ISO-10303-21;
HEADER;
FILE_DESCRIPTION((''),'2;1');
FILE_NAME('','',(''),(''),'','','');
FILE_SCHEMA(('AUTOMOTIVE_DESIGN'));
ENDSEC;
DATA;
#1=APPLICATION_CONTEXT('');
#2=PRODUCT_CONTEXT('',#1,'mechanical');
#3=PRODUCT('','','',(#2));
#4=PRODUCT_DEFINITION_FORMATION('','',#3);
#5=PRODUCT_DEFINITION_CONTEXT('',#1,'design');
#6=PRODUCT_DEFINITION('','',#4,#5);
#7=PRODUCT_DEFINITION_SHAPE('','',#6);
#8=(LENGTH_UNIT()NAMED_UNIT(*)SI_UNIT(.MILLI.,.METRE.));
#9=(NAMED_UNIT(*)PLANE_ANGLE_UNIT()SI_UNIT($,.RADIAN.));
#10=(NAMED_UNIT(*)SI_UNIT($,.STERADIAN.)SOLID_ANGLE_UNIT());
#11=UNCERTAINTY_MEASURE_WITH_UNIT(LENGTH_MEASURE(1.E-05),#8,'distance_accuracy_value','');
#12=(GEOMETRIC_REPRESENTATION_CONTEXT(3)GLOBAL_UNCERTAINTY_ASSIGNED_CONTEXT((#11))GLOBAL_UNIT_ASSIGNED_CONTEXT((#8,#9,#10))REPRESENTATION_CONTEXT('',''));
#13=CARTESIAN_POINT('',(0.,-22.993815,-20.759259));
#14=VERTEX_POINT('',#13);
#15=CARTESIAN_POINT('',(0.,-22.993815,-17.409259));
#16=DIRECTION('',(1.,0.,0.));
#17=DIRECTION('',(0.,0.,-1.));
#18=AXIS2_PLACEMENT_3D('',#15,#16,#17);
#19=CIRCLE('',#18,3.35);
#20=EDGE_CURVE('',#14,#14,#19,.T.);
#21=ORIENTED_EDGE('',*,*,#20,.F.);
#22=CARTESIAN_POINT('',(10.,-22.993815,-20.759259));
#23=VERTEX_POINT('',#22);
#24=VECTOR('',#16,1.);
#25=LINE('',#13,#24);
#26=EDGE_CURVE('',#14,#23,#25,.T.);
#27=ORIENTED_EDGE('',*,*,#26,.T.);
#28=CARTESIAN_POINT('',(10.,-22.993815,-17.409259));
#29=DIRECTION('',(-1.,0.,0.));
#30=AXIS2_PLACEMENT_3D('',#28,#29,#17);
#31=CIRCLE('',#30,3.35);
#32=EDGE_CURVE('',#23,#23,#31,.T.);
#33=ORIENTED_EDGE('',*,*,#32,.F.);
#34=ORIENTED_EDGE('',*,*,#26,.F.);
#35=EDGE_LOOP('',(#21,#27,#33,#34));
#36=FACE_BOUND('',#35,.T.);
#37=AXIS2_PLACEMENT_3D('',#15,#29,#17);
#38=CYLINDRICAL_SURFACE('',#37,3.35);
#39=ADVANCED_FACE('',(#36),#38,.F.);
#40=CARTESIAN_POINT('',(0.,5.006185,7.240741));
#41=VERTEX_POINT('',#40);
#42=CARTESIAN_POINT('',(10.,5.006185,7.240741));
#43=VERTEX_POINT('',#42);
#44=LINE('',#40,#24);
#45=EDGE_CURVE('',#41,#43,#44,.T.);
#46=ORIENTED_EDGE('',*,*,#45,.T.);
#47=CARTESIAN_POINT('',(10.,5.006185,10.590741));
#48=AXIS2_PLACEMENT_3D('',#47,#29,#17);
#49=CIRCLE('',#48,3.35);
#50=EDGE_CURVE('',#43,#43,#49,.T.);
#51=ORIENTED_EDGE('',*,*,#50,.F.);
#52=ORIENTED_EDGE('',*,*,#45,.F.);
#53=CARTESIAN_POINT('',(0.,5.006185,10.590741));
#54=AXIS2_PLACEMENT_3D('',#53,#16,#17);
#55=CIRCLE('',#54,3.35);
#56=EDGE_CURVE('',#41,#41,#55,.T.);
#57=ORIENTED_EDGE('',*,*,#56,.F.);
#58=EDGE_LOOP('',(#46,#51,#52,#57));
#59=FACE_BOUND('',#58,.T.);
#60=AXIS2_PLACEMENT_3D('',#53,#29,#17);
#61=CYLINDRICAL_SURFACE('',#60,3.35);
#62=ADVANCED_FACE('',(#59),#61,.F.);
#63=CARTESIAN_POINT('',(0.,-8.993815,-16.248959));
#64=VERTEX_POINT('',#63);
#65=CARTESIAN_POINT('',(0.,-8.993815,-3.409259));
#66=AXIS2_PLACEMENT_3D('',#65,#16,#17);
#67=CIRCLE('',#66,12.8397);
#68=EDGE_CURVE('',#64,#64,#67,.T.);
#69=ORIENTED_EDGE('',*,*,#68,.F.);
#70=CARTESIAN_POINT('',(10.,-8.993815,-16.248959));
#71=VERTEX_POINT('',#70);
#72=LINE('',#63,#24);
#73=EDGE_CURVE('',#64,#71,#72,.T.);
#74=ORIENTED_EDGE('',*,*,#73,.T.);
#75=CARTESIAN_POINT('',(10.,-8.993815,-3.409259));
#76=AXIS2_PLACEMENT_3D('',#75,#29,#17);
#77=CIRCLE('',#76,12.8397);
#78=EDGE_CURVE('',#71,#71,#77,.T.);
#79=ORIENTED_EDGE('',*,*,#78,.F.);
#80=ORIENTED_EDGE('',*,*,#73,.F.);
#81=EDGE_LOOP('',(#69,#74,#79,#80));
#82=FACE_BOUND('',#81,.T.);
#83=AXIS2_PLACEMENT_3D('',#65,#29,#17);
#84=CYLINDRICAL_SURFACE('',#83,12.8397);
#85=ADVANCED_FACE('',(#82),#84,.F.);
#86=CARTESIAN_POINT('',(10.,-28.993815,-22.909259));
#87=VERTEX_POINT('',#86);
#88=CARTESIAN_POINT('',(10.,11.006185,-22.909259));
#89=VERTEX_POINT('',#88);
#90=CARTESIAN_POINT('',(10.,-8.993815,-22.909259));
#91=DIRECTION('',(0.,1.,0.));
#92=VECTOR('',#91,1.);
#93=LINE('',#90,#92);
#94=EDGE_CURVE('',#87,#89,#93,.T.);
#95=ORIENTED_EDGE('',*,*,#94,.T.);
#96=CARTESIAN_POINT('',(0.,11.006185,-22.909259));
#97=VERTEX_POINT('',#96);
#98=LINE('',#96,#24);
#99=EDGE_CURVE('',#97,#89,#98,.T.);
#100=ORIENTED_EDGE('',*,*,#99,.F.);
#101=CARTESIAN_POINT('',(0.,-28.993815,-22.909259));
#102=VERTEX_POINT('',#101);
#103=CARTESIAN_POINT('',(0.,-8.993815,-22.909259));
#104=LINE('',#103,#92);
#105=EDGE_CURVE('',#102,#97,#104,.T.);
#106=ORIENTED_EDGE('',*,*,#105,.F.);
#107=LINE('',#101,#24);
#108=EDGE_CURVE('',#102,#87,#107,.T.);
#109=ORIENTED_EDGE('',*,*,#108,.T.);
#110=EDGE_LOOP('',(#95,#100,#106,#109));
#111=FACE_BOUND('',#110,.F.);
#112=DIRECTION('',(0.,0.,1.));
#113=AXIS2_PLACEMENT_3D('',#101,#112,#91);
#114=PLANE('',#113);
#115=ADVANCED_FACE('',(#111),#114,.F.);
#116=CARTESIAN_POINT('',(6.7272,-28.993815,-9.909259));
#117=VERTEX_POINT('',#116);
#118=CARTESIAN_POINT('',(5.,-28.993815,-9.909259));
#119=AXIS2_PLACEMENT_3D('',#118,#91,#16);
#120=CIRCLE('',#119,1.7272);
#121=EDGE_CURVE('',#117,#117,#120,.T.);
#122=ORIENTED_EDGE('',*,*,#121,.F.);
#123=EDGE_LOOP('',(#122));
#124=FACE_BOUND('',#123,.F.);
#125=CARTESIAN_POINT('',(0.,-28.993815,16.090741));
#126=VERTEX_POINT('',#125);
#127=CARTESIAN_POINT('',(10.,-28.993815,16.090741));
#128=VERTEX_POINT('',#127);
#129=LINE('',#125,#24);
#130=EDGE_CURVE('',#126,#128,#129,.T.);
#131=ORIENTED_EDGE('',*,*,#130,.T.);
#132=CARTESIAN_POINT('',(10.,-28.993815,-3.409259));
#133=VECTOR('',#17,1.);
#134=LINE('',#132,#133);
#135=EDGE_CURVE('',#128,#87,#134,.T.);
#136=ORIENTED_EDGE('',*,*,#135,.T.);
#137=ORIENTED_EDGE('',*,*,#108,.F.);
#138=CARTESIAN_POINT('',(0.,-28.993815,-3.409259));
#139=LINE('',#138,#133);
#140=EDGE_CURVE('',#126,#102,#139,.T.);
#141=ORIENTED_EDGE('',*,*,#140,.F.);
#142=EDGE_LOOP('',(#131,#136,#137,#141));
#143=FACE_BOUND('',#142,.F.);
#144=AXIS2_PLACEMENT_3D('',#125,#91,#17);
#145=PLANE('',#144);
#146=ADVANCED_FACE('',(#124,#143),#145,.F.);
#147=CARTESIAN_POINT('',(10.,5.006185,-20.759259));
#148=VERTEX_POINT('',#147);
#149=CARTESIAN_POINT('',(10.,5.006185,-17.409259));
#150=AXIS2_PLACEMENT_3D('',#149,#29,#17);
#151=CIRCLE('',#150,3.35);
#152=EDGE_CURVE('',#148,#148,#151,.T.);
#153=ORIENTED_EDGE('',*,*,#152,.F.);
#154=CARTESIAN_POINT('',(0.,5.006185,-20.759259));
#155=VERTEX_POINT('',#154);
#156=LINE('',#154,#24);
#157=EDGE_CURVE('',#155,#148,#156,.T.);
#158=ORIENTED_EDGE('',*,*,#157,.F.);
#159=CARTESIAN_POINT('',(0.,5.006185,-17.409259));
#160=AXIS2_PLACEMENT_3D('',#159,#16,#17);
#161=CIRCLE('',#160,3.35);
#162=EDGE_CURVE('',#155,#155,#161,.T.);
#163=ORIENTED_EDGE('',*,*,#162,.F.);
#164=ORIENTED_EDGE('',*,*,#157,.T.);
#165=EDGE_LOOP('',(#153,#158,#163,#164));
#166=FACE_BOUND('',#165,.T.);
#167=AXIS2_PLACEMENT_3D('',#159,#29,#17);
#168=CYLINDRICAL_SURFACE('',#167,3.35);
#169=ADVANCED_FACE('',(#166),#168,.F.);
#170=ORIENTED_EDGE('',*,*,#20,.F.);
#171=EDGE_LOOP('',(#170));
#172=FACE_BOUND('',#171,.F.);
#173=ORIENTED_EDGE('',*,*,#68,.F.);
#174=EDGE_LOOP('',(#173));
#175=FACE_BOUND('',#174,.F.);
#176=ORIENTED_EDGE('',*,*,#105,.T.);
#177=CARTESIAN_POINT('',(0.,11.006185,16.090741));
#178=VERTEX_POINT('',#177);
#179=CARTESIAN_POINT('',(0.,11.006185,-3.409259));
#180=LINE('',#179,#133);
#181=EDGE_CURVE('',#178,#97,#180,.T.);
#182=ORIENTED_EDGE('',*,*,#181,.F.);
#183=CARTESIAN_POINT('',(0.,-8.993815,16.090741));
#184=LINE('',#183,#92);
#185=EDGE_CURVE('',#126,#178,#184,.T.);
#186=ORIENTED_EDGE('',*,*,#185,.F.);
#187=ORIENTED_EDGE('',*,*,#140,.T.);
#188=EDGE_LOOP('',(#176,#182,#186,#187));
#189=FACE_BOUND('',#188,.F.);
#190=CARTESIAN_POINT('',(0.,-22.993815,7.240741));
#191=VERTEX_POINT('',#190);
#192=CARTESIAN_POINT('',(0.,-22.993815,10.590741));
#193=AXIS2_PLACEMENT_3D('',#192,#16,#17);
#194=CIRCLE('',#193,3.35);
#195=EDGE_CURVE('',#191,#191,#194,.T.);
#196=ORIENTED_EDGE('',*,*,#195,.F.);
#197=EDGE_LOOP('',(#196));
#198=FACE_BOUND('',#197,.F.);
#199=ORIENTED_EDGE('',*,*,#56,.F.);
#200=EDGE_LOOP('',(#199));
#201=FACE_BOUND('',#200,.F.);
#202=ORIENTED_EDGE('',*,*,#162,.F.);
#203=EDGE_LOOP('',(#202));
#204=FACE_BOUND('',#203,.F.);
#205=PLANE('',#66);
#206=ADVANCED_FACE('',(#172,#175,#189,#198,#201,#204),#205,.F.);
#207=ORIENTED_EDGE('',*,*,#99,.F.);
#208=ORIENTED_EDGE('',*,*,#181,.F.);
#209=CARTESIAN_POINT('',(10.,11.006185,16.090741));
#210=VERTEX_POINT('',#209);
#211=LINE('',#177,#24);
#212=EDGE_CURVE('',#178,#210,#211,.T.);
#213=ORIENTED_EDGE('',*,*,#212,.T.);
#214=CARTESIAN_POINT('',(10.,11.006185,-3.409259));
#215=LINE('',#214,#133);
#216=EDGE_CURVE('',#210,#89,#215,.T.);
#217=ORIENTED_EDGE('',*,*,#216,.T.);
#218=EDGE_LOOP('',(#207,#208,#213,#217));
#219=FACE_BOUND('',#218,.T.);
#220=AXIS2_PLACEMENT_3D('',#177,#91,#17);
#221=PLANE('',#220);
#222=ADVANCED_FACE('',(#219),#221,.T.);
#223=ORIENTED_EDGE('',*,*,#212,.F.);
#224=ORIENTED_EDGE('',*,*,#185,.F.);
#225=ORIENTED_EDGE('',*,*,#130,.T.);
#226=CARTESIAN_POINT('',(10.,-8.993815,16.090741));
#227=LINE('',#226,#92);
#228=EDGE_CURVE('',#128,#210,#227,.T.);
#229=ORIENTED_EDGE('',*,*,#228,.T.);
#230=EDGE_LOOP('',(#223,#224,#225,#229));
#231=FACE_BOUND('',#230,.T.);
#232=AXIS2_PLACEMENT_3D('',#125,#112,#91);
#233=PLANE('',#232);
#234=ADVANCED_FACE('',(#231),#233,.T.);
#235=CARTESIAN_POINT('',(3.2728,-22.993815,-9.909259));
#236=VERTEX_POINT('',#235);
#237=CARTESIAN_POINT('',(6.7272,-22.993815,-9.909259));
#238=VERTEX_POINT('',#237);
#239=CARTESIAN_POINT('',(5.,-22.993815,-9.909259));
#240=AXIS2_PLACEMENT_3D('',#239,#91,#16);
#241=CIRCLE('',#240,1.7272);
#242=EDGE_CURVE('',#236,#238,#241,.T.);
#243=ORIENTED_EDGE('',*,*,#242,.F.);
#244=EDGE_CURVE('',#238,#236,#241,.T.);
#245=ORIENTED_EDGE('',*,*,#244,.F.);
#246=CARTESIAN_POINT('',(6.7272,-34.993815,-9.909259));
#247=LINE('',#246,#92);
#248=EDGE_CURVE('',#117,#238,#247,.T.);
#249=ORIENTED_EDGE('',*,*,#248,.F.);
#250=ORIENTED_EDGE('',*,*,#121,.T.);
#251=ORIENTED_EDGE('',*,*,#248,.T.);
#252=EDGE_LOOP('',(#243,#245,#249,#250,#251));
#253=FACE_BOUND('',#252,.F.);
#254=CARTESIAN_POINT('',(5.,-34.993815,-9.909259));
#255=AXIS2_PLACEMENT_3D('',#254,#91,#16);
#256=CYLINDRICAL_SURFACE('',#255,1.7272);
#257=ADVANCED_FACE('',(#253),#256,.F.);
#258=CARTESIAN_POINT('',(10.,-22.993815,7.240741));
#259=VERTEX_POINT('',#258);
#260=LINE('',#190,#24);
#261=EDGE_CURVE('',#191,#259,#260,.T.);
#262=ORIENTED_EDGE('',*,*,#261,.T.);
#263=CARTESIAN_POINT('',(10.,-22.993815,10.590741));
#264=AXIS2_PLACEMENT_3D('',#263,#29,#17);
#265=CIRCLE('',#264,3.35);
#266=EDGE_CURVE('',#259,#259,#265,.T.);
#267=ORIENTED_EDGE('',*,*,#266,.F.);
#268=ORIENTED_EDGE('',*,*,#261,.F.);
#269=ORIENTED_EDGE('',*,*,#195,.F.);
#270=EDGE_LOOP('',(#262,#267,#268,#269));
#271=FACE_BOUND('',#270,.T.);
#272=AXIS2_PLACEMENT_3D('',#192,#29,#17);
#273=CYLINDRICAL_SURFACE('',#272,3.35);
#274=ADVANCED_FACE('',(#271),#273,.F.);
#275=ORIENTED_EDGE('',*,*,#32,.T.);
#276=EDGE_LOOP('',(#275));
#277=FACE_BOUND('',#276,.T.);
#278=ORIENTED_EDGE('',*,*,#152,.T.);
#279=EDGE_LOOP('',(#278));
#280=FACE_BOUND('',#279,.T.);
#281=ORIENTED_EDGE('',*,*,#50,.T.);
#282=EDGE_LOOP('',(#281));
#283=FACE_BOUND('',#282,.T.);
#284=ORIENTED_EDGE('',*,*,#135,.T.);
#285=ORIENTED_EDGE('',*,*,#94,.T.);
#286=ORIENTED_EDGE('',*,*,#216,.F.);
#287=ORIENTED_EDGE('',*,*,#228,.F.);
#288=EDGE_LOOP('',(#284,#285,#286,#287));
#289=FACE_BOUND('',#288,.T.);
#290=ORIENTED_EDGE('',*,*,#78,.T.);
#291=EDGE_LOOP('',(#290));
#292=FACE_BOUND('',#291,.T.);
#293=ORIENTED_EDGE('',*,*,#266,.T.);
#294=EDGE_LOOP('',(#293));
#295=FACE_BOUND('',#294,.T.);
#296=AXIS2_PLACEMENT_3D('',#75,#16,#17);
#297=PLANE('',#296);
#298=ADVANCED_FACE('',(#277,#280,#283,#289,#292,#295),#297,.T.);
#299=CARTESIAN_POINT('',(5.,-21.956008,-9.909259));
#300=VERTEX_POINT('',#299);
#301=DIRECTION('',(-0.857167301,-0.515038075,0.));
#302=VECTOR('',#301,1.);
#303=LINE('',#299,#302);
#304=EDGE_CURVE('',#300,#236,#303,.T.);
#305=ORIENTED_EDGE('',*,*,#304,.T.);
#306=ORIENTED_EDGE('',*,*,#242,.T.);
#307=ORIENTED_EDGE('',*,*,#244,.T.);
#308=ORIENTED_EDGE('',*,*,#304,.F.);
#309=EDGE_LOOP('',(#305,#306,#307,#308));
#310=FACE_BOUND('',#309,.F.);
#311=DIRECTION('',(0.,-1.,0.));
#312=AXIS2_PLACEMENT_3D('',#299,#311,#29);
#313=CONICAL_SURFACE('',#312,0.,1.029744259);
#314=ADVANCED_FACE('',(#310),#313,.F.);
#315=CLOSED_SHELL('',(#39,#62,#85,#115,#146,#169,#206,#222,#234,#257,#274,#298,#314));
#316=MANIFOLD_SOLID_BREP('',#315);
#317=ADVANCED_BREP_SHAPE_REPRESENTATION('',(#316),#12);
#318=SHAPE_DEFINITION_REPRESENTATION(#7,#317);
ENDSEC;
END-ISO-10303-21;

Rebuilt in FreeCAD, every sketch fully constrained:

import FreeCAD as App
import Part
import Sketcher
Q = App.Units.Quantity


def add_polygon(sketch, points):
    """Adds a closed chain of lines whose ends are joined by coincident constraints."""
    first, n = sketch.GeometryCount, len(points)
    for a, b in zip(points, points[1:] + points[:1]):
        sketch.addGeometry(Part.LineSegment(App.Vector(*a, 0), App.Vector(*b, 0)), False)
    for i in range(n):
        sketch.addConstraint(Sketcher.Constraint("Coincident", first + i, 2, first + (i + 1) % n, 1))

doc = App.newDocument("Part")
body = doc.addObject("PartDesign::Body", "Body")

sketch1 = body.newObject("Sketcher::SketchObject", "Sketch")
sketch1.AttachmentSupport = (doc.getObject("YZ_Plane"), [""])
sketch1.MapMode = "FlatFace"
add_polygon(sketch1, [(11, 16), (-29, 16), (-29, -23), (11, -23)])
sketch1.addConstraint(Sketcher.Constraint("Horizontal", 0))
sketch1.addConstraint(Sketcher.Constraint("Vertical", 1))
sketch1.addConstraint(Sketcher.Constraint("Horizontal", 2))
sketch1.addConstraint(Sketcher.Constraint("Vertical", 3))
sketch1.addConstraint(Sketcher.Constraint("DistanceX", 0, 2, 0, 1, Q("40 mm")))
sketch1.addConstraint(Sketcher.Constraint("DistanceY", 1, 2, 1, 1, Q("39 mm")))
sketch1.addConstraint(Sketcher.Constraint("DistanceY", -1, 1, 0, 2, Q("16.090741 mm")))
sketch1.addConstraint(Sketcher.Constraint("DistanceX", 0, 2, -1, 1, Q("28.993815 mm")))
pad1 = body.newObject("PartDesign::Pad", "Pad")
pad1.Profile = sketch1
pad1.Length = 10

sketch2 = body.newObject("Sketcher::SketchObject", "Sketch001")
sketch2.AttachmentSupport = (doc.getObject("YZ_Plane"), [""])
sketch2.MapMode = "FlatFace"
sketch2.addGeometry(Part.Circle(App.Vector(-9, -3, 0), App.Vector(0, 0, 1), 13), False)
sketch2.addConstraint(Sketcher.Constraint("Diameter", 0, Q("25.6794 mm")))
sketch2.addConstraint(Sketcher.Constraint("DistanceY", 0, 3, -1, 1, Q("3.409259 mm")))
sketch2.addConstraint(Sketcher.Constraint("DistanceX", 0, 3, -1, 1, Q("8.993815 mm")))
pocket1 = body.newObject("PartDesign::Pocket", "Pocket")
pocket1.Profile = sketch2
pocket1.Type = "UpToFirst"
pocket1.Reversed = True

sketch3 = body.newObject("Sketcher::SketchObject", "Sketch002")
sketch3.AttachmentSupport = (doc.getObject("YZ_Plane"), [""])
sketch3.MapMode = "FlatFace"
sketch3.addGeometry(Part.Circle(App.Vector(5, 10.6, 0), App.Vector(0, 0, 1), 3.4), False)
sketch3.addConstraint(Sketcher.Constraint("Diameter", 0, Q("6.7 mm")))
sketch3.addConstraint(Sketcher.Constraint("DistanceY", -1, 1, 0, 3, Q("10.590741 mm")))
sketch3.addConstraint(Sketcher.Constraint("DistanceX", -1, 1, 0, 3, Q("5.006185 mm")))
pocket2 = body.newObject("PartDesign::Pocket", "Pocket001")
pocket2.Profile = sketch3
pocket2.Type = "UpToFirst"
pocket2.Reversed = True

sketch4 = body.newObject("Sketcher::SketchObject", "Sketch003")
sketch4.AttachmentSupport = (doc.getObject("YZ_Plane"), [""])
sketch4.MapMode = "FlatFace"
sketch4.addGeometry(Part.Circle(App.Vector(5, -17.4, 0), App.Vector(0, 0, 1), 3.4), False)
sketch4.addConstraint(Sketcher.Constraint("Diameter", 0, Q("6.7 mm")))
sketch4.addConstraint(Sketcher.Constraint("DistanceY", 0, 3, -1, 1, Q("17.409259 mm")))
sketch4.addConstraint(Sketcher.Constraint("DistanceX", -1, 1, 0, 3, Q("5.006185 mm")))
pocket3 = body.newObject("PartDesign::Pocket", "Pocket002")
pocket3.Profile = sketch4
pocket3.Type = "UpToFirst"
pocket3.Reversed = True

sketch5 = body.newObject("Sketcher::SketchObject", "Sketch004")
sketch5.AttachmentSupport = (doc.getObject("YZ_Plane"), [""])
sketch5.MapMode = "FlatFace"
sketch5.addGeometry(Part.Circle(App.Vector(-23, -17.4, 0), App.Vector(0, 0, 1), 3.4), False)
sketch5.addConstraint(Sketcher.Constraint("Diameter", 0, Q("6.7 mm")))
sketch5.addConstraint(Sketcher.Constraint("DistanceY", 0, 3, -1, 1, Q("17.409259 mm")))
sketch5.addConstraint(Sketcher.Constraint("DistanceX", 0, 3, -1, 1, Q("22.993815 mm")))
pocket4 = body.newObject("PartDesign::Pocket", "Pocket003")
pocket4.Profile = sketch5
pocket4.Type = "UpToFirst"
pocket4.Reversed = True

sketch6 = body.newObject("Sketcher::SketchObject", "Sketch005")
sketch6.AttachmentSupport = (doc.getObject("YZ_Plane"), [""])
sketch6.MapMode = "FlatFace"
sketch6.addGeometry(Part.Circle(App.Vector(-23, 10.6, 0), App.Vector(0, 0, 1), 3.4), False)
sketch6.addConstraint(Sketcher.Constraint("Diameter", 0, Q("6.7 mm")))
sketch6.addConstraint(Sketcher.Constraint("DistanceY", -1, 1, 0, 3, Q("10.590741 mm")))
sketch6.addConstraint(Sketcher.Constraint("DistanceX", 0, 3, -1, 1, Q("22.993815 mm")))
pocket5 = body.newObject("PartDesign::Pocket", "Pocket004")
pocket5.Profile = sketch6
pocket5.Type = "UpToFirst"
pocket5.Reversed = True

sketch7 = body.newObject("Sketcher::SketchObject", "Sketch006")
sketch7.AttachmentSupport = (doc.getObject("XZ_Plane"), [""])
sketch7.MapMode = "FlatFace"
sketch7.AttachmentOffset = App.Placement(App.Vector(0, 0, 28.993815), App.Rotation())
sketch7.addGeometry(Part.Circle(App.Vector(5, -9.9, 0), App.Vector(0, 0, 1), 1.7), False)
sketch7.addConstraint(Sketcher.Constraint("DistanceX", -1, 1, 0, 3, Q("5 mm")))
sketch7.addConstraint(Sketcher.Constraint("Diameter", 0, Q("3.4544 mm")))
sketch7.addConstraint(Sketcher.Constraint("DistanceY", 0, 3, -1, 1, Q("9.909259 mm")))
doc.recompute()
hole = body.newObject("PartDesign::Hole", "Hole")
hole.Profile = sketch7
hole.ThreadType = "None"
hole.Diameter = 3.4544
hole.DepthType = "Dimension"
hole.Depth = 6
hole.DrillPoint = "Angled"
hole.DrillPointAngle = 118

doc.recompute()
